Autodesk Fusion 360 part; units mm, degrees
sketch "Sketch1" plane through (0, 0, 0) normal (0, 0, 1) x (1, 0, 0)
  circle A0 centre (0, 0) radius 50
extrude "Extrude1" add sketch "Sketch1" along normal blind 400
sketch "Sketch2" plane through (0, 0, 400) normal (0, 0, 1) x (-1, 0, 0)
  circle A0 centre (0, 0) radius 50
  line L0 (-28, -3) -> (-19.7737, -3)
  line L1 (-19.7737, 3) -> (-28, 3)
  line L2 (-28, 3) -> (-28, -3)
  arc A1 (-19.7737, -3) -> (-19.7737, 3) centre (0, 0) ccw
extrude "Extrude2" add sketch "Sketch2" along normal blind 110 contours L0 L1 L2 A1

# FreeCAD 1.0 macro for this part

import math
import FreeCAD as App
import Part
import Sketcher

doc = App.newDocument("Part")
body = doc.addObject("PartDesign::Body", "Body")

sketch1 = body.newObject("Sketcher::SketchObject", "Sketch")
sketch1.AttachmentSupport = (doc.getObject("XY_Plane"), [""])
sketch1.MapMode = "FlatFace"
sketch1.addGeometry(Part.Circle(App.Vector(0, 0, 0), App.Vector(0, 0, 1), 50), False)
sketch1.addConstraint(Sketcher.Constraint("Coincident", 0, 3, -1, 1))
sketch1.addConstraint(Sketcher.Constraint("Diameter", 0, 100.0))
pad1 = body.newObject("PartDesign::Pad", "Pad")
pad1.Profile = sketch1
pad1.Length = 400

sketch2 = body.newObject("Sketcher::SketchObject", "Sketch001")
sketch2.AttachmentSupport = (doc.getObject("XY_Plane"), [""])
sketch2.MapMode = "FlatFace"
sketch2.AttachmentOffset = App.Placement(App.Vector(0, 0, 400), App.Rotation())
sketch2.addGeometry(Part.LineSegment(App.Vector(28, -3, 0), App.Vector(28, 3, 0)), False)
sketch2.addGeometry(Part.LineSegment(App.Vector(28, 3, 0), App.Vector(20, 3, 0)), False)
sketch2.addGeometry(Part.ArcOfCircle(Part.Circle(App.Vector(0, 0, 0), App.Vector(0, 0, 1), 20), math.radians(9), math.radians(351)), False)
sketch2.addGeometry(Part.LineSegment(App.Vector(20, -3, 0), App.Vector(28, -3, 0)), False)
sketch2.addConstraint(Sketcher.Constraint("Coincident", 0, 2, 1, 1))
sketch2.addConstraint(Sketcher.Constraint("Coincident", 1, 2, 2, 1))
sketch2.addConstraint(Sketcher.Constraint("Coincident", 2, 2, 3, 1))
sketch2.addConstraint(Sketcher.Constraint("Coincident", 3, 2, 0, 1))
sketch2.addConstraint(Sketcher.Constraint("Vertical", 0))
sketch2.addConstraint(Sketcher.Constraint("Horizontal", 1))
sketch2.addConstraint(Sketcher.Constraint("Horizontal", 3))
sketch2.addConstraint(Sketcher.Constraint("Coincident", 2, 3, -1, 1))
sketch2.addConstraint(Sketcher.Constraint("Vertical", 1, 2, 2, 2))
sketch2.addConstraint(Sketcher.Constraint("Radius", 2, 20.0))
sketch2.addConstraint(Sketcher.Constraint("DistanceY", 0, 1, 0, 2, 6.0))
sketch2.addConstraint(Sketcher.Constraint("DistanceX", -1, 1, 0, 2, 28.0))
pad2 = body.newObject("PartDesign::Pad", "Pad001")
pad2.Profile = sketch2
pad2.Length = 110

doc.recompute()
